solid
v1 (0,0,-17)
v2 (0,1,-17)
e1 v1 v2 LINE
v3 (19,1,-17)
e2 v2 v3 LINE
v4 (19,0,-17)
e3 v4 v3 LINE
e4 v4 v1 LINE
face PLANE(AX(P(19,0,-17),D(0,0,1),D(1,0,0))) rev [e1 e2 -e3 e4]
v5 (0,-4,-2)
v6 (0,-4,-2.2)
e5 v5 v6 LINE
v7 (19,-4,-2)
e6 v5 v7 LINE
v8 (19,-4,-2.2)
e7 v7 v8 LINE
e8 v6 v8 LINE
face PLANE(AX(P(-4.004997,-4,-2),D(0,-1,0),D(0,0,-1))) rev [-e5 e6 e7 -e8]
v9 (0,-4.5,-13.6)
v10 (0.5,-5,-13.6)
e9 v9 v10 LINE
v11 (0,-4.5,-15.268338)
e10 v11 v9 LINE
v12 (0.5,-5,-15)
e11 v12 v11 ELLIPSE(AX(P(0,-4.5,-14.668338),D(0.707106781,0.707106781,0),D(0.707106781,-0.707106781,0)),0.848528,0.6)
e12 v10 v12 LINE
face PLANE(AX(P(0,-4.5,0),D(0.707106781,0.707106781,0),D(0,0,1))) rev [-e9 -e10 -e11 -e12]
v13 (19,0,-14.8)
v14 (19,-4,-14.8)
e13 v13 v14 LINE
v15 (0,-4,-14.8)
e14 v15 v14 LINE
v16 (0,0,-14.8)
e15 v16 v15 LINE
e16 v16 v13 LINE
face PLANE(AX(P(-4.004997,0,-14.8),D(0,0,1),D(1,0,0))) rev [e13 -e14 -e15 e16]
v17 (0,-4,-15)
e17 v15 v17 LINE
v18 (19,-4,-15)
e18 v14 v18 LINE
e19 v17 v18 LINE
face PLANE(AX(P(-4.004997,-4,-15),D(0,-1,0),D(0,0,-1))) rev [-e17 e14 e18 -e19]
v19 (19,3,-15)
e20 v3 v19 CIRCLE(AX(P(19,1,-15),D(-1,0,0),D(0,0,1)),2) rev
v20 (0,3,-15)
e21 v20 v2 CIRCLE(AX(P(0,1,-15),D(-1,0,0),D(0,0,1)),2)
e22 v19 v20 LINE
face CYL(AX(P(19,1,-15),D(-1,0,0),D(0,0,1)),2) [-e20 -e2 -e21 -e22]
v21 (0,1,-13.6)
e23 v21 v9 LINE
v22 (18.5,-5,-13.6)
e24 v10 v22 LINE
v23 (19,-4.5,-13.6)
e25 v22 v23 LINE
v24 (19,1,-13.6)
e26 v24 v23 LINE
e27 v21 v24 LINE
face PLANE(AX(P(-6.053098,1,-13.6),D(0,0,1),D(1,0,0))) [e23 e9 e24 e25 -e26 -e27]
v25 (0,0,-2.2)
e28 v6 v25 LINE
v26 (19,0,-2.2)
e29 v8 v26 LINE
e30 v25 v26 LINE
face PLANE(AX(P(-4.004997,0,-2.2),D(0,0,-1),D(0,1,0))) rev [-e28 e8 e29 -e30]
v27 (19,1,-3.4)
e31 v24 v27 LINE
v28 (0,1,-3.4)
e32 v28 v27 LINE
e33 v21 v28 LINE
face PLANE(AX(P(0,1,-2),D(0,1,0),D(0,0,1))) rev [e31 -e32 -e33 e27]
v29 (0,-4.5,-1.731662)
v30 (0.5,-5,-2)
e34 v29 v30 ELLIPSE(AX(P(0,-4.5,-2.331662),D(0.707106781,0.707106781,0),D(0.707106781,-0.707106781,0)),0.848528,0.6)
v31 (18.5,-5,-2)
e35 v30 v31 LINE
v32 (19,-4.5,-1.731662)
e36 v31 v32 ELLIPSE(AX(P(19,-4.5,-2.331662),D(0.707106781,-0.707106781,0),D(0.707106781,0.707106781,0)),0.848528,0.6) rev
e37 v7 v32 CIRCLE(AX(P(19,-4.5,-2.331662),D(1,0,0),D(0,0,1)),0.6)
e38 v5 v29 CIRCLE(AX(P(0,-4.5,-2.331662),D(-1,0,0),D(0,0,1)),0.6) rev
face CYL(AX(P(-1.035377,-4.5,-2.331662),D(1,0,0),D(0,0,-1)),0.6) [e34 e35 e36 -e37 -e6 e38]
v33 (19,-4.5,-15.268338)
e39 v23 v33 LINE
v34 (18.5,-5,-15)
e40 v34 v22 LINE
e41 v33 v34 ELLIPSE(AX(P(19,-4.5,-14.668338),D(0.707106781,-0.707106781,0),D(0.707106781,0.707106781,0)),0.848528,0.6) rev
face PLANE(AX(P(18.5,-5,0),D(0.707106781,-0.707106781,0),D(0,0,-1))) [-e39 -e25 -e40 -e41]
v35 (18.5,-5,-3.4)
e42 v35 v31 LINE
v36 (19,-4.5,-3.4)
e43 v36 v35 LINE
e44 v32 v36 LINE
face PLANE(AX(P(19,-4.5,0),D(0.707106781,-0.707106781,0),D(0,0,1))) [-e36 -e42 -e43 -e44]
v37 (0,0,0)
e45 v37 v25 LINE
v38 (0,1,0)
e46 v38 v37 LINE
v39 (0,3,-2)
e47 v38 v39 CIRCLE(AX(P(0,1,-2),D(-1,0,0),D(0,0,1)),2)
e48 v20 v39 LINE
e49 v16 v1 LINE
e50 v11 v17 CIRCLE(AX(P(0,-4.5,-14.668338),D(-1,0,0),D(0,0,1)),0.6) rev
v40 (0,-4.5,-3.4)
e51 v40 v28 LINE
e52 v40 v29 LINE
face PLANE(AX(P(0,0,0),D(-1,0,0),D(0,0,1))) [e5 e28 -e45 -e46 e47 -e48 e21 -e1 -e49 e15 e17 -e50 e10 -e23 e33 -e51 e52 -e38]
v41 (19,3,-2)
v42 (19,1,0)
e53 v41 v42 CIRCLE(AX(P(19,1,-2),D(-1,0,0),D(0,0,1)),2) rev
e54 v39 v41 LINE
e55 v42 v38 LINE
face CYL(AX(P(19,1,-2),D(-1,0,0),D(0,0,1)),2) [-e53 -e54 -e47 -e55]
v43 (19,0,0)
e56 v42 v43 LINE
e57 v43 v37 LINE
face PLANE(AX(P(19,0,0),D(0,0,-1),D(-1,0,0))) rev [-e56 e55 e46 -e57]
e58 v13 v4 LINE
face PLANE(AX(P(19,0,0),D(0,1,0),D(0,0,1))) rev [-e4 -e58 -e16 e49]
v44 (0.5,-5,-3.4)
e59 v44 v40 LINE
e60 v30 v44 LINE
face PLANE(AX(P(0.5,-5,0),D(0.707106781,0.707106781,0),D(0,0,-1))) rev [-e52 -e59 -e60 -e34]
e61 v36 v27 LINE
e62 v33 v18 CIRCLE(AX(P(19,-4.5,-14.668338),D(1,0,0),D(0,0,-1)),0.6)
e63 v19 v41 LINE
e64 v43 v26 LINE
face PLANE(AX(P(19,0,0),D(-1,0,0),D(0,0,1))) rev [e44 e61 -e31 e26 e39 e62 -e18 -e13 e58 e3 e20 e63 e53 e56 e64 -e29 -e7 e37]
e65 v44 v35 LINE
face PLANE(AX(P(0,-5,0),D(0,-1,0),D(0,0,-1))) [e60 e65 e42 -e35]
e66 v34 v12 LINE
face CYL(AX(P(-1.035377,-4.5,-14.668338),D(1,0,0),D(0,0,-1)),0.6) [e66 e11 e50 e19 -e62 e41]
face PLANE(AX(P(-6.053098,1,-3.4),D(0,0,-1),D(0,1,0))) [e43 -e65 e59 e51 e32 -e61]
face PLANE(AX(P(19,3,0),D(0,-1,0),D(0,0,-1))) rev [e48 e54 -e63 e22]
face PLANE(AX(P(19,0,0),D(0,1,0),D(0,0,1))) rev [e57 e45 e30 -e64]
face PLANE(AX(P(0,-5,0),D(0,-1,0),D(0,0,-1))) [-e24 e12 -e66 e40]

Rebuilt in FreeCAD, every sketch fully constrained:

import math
import FreeCAD as App
import Part
import Sketcher
from FreeCAD import Vector
Q = App.Units.Quantity


def edges_at(feature, points):
    """Names of the edges that pass closest to the given points."""
    edges = feature.Shape.Edges
    near = lambda p: min(range(len(edges)), key=lambda i: edges[i].distToShape(Part.Vertex(*p))[0])
    return sorted({f"Edge{near(p) + 1}" for p in points})

doc = App.newDocument("Part")
params = doc.addObject("Spreadsheet::Sheet", "Params")
for row, (alias, value) in enumerate([
    ("sketch1_width", "3 mm"),
    ("sketch1_height", "17 mm"),
    ("pad1_length", "19 mm"),
    ("fillet_radius", "2 mm"),
    ("sketch2_width", "1 mm"),
    ("sketch2_height", "13 mm"),
    ("sketch3_width", "19 mm"),
    ("sketch3_height", "0.6 mm"),
    ("pad2_length", "6 mm"),
    ("sketch4_radius", "0.6 mm"),
    ("sketch4_width", "1 mm"),
    ("pad3_length", "19 mm"),
    ("sketch5_width", "6 mm"),
    ("sketch5_height", "0.8 mm"),
    ("pad4_length", "19 mm"),
    ("sketch6_width", "4 mm"),
    ("sketch6_height", "0.2 mm"),
    ("pocket2_length", "19 mm"),
    ("chamfer_size", "0.5 mm"),
], start=1):
    params.set(f"A{row}", alias)
    params.set(f"B{row}", "=" + value)
    params.setAlias(f"B{row}", alias)

body = doc.addObject("PartDesign::Body", "Body")

# Sketch on YZ plane
sketch1 = body.newObject("Sketcher::SketchObject", "Sketch")
sketch1.AttachmentSupport = (doc.getObject("YZ_Plane"), [""])
sketch1.MapMode = "FlatFace"
sketch1.addGeometry(Part.LineSegment(Vector(3, 0, 0), Vector(0, 0, 0)), False)
sketch1.addGeometry(Part.LineSegment(Vector(0, 0, 0), Vector(0, -17, 0)), False)
sketch1.addGeometry(Part.LineSegment(Vector(0, -17, 0), Vector(3, -17, 0)), False)
sketch1.addGeometry(Part.LineSegment(Vector(3, -17, 0), Vector(3, 0, 0)), False)
sketch1.addConstraint(Sketcher.Constraint("Coincident", 0, 2, 1, 1))
sketch1.addConstraint(Sketcher.Constraint("Coincident", 1, 2, 2, 1))
sketch1.addConstraint(Sketcher.Constraint("Coincident", 2, 2, 3, 1))
sketch1.addConstraint(Sketcher.Constraint("Coincident", 3, 2, 0, 1))
sketch1.addConstraint(Sketcher.Constraint("Horizontal", 0))
sketch1.addConstraint(Sketcher.Constraint("Vertical", 1))
sketch1.addConstraint(Sketcher.Constraint("Horizontal", 2))
sketch1.addConstraint(Sketcher.Constraint("Vertical", 3))
sketch1.addConstraint(Sketcher.Constraint("Coincident", 0, 2, -1, 1))
sketch1.addConstraint(Sketcher.Constraint("DistanceX", 0, 2, 0, 1, Q("3 mm")))
sketch1.addConstraint(Sketcher.Constraint("DistanceY", 1, 2, 1, 1, Q("17 mm")))
sketch1.setExpression("Constraints[9]", "Params.sketch1_width")
sketch1.setExpression("Constraints[10]", "Params.sketch1_height")
pad1 = body.newObject("PartDesign::Pad", "Pad")
pad1.Profile = sketch1
pad1.setExpression("Length", "Params.pad1_length")
doc.recompute()

fillet = body.newObject("PartDesign::Fillet", "Fillet")
fillet.Base = (pad1, edges_at(pad1, [(9.5, 3, 0), (9.5, 3, -17)]))
fillet.setExpression("Radius", "Params.fillet_radius")

# Sketch on YZ plane
sketch2 = body.newObject("Sketcher::SketchObject", "Sketch001")
sketch2.AttachmentSupport = (doc.getObject("YZ_Plane"), [""])
sketch2.MapMode = "FlatFace"
sketch2.AttachmentOffset = App.Placement(Vector(0, 0, 19), App.Rotation())
sketch2.addGeometry(Part.LineSegment(Vector(1, -2, 0), Vector(0, -2, 0)), False)
sketch2.addGeometry(Part.LineSegment(Vector(0, -2, 0), Vector(0, -15, 0)), False)
sketch2.addGeometry(Part.LineSegment(Vector(0, -15, 0), Vector(1, -15, 0)), False)
sketch2.addGeometry(Part.LineSegment(Vector(1, -15, 0), Vector(1, -2, 0)), False)
sketch2.addConstraint(Sketcher.Constraint("Coincident", 0, 2, 1, 1))
sketch2.addConstraint(Sketcher.Constraint("Coincident", 1, 2, 2, 1))
sketch2.addConstraint(Sketcher.Constraint("Coincident", 2, 2, 3, 1))
sketch2.addConstraint(Sketcher.Constraint("Coincident", 3, 2, 0, 1))
sketch2.addConstraint(Sketcher.Constraint("Horizontal", 0))
sketch2.addConstraint(Sketcher.Constraint("Vertical", 1))
sketch2.addConstraint(Sketcher.Constraint("Horizontal", 2))
sketch2.addConstraint(Sketcher.Constraint("Vertical", 3))
sketch2.addConstraint(Sketcher.Constraint("PointOnObject", 0, 2, -2))
sketch2.addConstraint(Sketcher.Constraint("DistanceX", 0, 2, 0, 1, Q("1 mm")))
sketch2.addConstraint(Sketcher.Constraint("DistanceY", 1, 2, 1, 1, Q("13 mm")))
sketch2.addConstraint(Sketcher.Constraint("DistanceY", 0, 2, -1, 1, Q("2 mm")))
sketch2.setExpression("Constraints[9]", "Params.sketch2_width")
sketch2.setExpression("Constraints[10]", "Params.sketch2_height")
pocket1 = body.newObject("PartDesign::Pocket", "Pocket")
pocket1.Profile = sketch2
pocket1.Type = "ThroughAll"

# Sketch on XZ plane
sketch3 = body.newObject("Sketcher::SketchObject", "Sketch002")
sketch3.AttachmentSupport = (doc.getObject("XZ_Plane"), [""])
sketch3.MapMode = "FlatFace"
sketch3.AttachmentOffset = App.Placement(Vector(0, 0, -1), App.Rotation())
sketch3.addGeometry(Part.LineSegment(Vector(19, -2.6, 0), Vector(19, -2, 0)), False)
sketch3.addGeometry(Part.LineSegment(Vector(19, -2, 0), Vector(0, -2, 0)), False)
sketch3.addGeometry(Part.LineSegment(Vector(0, -2, 0), Vector(0, -2.6, 0)), False)
sketch3.addGeometry(Part.LineSegment(Vector(0, -2.6, 0), Vector(19, -2.6, 0)), False)
sketch3.addGeometry(Part.LineSegment(Vector(19, -15, 0), Vector(19, -14.4, 0)), False)
sketch3.addGeometry(Part.LineSegment(Vector(19, -14.4, 0), Vector(0, -14.4, 0)), False)
sketch3.addGeometry(Part.LineSegment(Vector(0, -14.4, 0), Vector(0, -15, 0)), False)
sketch3.addGeometry(Part.LineSegment(Vector(0, -15, 0), Vector(19, -15, 0)), False)
sketch3.addConstraint(Sketcher.Constraint("Coincident", 0, 2, 1, 1))
sketch3.addConstraint(Sketcher.Constraint("Coincident", 1, 2, 2, 1))
sketch3.addConstraint(Sketcher.Constraint("Coincident", 2, 2, 3, 1))
sketch3.addConstraint(Sketcher.Constraint("Coincident", 3, 2, 0, 1))
sketch3.addConstraint(Sketcher.Constraint("Coincident", 4, 2, 5, 1))
sketch3.addConstraint(Sketcher.Constraint("Coincident", 5, 2, 6, 1))
sketch3.addConstraint(Sketcher.Constraint("Coincident", 6, 2, 7, 1))
sketch3.addConstraint(Sketcher.Constraint("Coincident", 7, 2, 4, 1))
sketch3.addConstraint(Sketcher.Constraint("Vertical", 0))
sketch3.addConstraint(Sketcher.Constraint("Horizontal", 1))
sketch3.addConstraint(Sketcher.Constraint("Vertical", 2))
sketch3.addConstraint(Sketcher.Constraint("Horizontal", 3))
sketch3.addConstraint(Sketcher.Constraint("Vertical", 4))
sketch3.addConstraint(Sketcher.Constraint("Horizontal", 5))
sketch3.addConstraint(Sketcher.Constraint("Vertical", 6))
sketch3.addConstraint(Sketcher.Constraint("Horizontal", 7))
sketch3.addConstraint(Sketcher.Constraint("PointOnObject", 1, 2, -2))
sketch3.addConstraint(Sketcher.Constraint("PointOnObject", 5, 2, -2))
sketch3.addConstraint(Sketcher.Constraint("Vertical", 3, 2, 4, 2))
sketch3.addConstraint(Sketcher.Constraint("Equal", 2, 4))
sketch3.addConstraint(Sketcher.Constraint("DistanceX", 1, 2, 1, 1, Q("19 mm")))
sketch3.addConstraint(Sketcher.Constraint("DistanceY", 0, 1, 0, 2, Q("0.6 mm")))
sketch3.addConstraint(Sketcher.Constraint("DistanceY", 0, 2, -1, 1, Q("2 mm")))
sketch3.addConstraint(Sketcher.Constraint("DistanceY", 6, 2, -1, 1, Q("15 mm")))
sketch3.setExpression("Constraints[20]", "Params.sketch3_width")
sketch3.setExpression("Constraints[21]", "Params.sketch3_height")
pad2 = body.newObject("PartDesign::Pad", "Pad001")
pad2.Profile = sketch3
pad2.setExpression("Length", "Params.pad2_length")

# Sketch on YZ plane
sketch4 = body.newObject("Sketcher::SketchObject", "Sketch003")
sketch4.AttachmentSupport = (doc.getObject("YZ_Plane"), [""])
sketch4.MapMode = "FlatFace"
sketch4.AttachmentOffset = App.Placement(Vector(0, 0, 19), App.Rotation())
sketch4.addGeometry(Part.LineSegment(Vector(-5, -2, 0), Vector(-4, -2, 0)), False)
sketch4.addGeometry(Part.ArcOfCircle(Part.Circle(Vector(-4.5, -2.3, 0), Vector(0, 0, 1), 0.6), math.radians(34), math.radians(146)), False)
sketch4.addGeometry(Part.LineSegment(Vector(-4, -15, 0), Vector(-5, -15, 0)), False)
sketch4.addGeometry(Part.ArcOfCircle(Part.Circle(Vector(-4.5, -14.7, 0), Vector(0, 0, 1), 0.6), math.radians(-146), math.radians(-34)), False)
sketch4.addConstraint(Sketcher.Constraint("Coincident", 0, 1, 1, 2))
sketch4.addConstraint(Sketcher.Constraint("Coincident", 1, 1, 0, 2))
sketch4.addConstraint(Sketcher.Constraint("Coincident", 2, 1, 3, 2))
sketch4.addConstraint(Sketcher.Constraint("Coincident", 3, 1, 2, 2))
sketch4.addConstraint(Sketcher.Constraint("Horizontal", 0))
sketch4.addConstraint(Sketcher.Constraint("Horizontal", 2))
sketch4.addConstraint(Sketcher.Constraint("Equal", 1, 3))
sketch4.addConstraint(Sketcher.Constraint("Vertical", 1, 3, 3, 3))
sketch4.addConstraint(Sketcher.Constraint("Vertical", 1, 1, 2, 1))
sketch4.addConstraint(Sketcher.Constraint("Radius", 1, Q("0.6 mm")))
sketch4.addConstraint(Sketcher.Constraint("DistanceX", 0, 1, 0, 2, Q("1 mm")))
sketch4.addConstraint(Sketcher.Constraint("DistanceX", 0, 1, -1, 1, Q("5 mm")))
sketch4.addConstraint(Sketcher.Constraint("DistanceY", 0, 1, -1, 1, Q("2 mm")))
sketch4.addConstraint(Sketcher.Constraint("DistanceY", 2, 1, -1, 1, Q("15 mm")))
sketch4.setExpression("Constraints[9]", "Params.sketch4_radius")
sketch4.setExpression("Constraints[10]", "Params.sketch4_width")
pad3 = body.newObject("PartDesign::Pad", "Pad002")
pad3.Profile = sketch4
pad3.setExpression("Length", "Params.pad3_length")
pad3.Reversed = True

# Sketch on YZ plane
sketch5 = body.newObject("Sketcher::SketchObject", "Sketch004")
sketch5.AttachmentSupport = (doc.getObject("YZ_Plane"), [""])
sketch5.MapMode = "FlatFace"
sketch5.AttachmentOffset = App.Placement(Vector(0, 0, 19), App.Rotation())
sketch5.addGeometry(Part.LineSegment(Vector(1, -2.6, 0), Vector(-5, -2.6, 0)), False)
sketch5.addGeometry(Part.LineSegment(Vector(-5, -2.6, 0), Vector(-5, -3.4, 0)), False)
sketch5.addGeometry(Part.LineSegment(Vector(-5, -3.4, 0), Vector(1, -3.4, 0)), False)
sketch5.addGeometry(Part.LineSegment(Vector(1, -3.4, 0), Vector(1, -2.6, 0)), False)
sketch5.addGeometry(Part.LineSegment(Vector(1, -13.6, 0), Vector(-5, -13.6, 0)), False)
sketch5.addGeometry(Part.LineSegment(Vector(-5, -13.6, 0), Vector(-5, -14.4, 0)), False)
sketch5.addGeometry(Part.LineSegment(Vector(-5, -14.4, 0), Vector(1, -14.4, 0)), False)
sketch5.addGeometry(Part.LineSegment(Vector(1, -14.4, 0), Vector(1, -13.6, 0)), False)
sketch5.addConstraint(Sketcher.Constraint("Coincident", 0, 2, 1, 1))
sketch5.addConstraint(Sketcher.Constraint("Coincident", 1, 2, 2, 1))
sketch5.addConstraint(Sketcher.Constraint("Coincident", 2, 2, 3, 1))
sketch5.addConstraint(Sketcher.Constraint("Coincident", 3, 2, 0, 1))
sketch5.addConstraint(Sketcher.Constraint("Coincident", 4, 2, 5, 1))
sketch5.addConstraint(Sketcher.Constraint("Coincident", 5, 2, 6, 1))
sketch5.addConstraint(Sketcher.Constraint("Coincident", 6, 2, 7, 1))
sketch5.addConstraint(Sketcher.Constraint("Coincident", 7, 2, 4, 1))
sketch5.addConstraint(Sketcher.Constraint("Horizontal", 0))
sketch5.addConstraint(Sketcher.Constraint("Vertical", 1))
sketch5.addConstraint(Sketcher.Constraint("Horizontal", 2))
sketch5.addConstraint(Sketcher.Constraint("Vertical", 3))
sketch5.addConstraint(Sketcher.Constraint("Horizontal", 4))
sketch5.addConstraint(Sketcher.Constraint("Vertical", 5))
sketch5.addConstraint(Sketcher.Constraint("Horizontal", 6))
sketch5.addConstraint(Sketcher.Constraint("Vertical", 7))
sketch5.addConstraint(Sketcher.Constraint("Vertical", 1, 2, 4, 2))
sketch5.addConstraint(Sketcher.Constraint("Vertical", 3, 2, 6, 2))
sketch5.addConstraint(Sketcher.Constraint("Equal", 3, 5))
sketch5.addConstraint(Sketcher.Constraint("DistanceX", 0, 2, 0, 1, Q("6 mm")))
sketch5.addConstraint(Sketcher.Constraint("DistanceY", 1, 2, 1, 1, Q("0.8 mm")))
sketch5.addConstraint(Sketcher.Constraint("DistanceX", 0, 2, -1, 1, Q("5 mm")))
sketch5.addConstraint(Sketcher.Constraint("DistanceY", 4, 2, 0, 2, Q("11 mm")))
sketch5.addConstraint(Sketcher.Constraint("DistanceY", 0, 2, -1, 1, Q("2.6 mm")))
sketch5.setExpression("Constraints[19]", "Params.sketch5_width")
sketch5.setExpression("Constraints[20]", "Params.sketch5_height")
pad4 = body.newObject("PartDesign::Pad", "Pad003")
pad4.Profile = sketch5
pad4.setExpression("Length", "Params.pad4_length")
pad4.Reversed = True

# Sketch on YZ plane
sketch6 = body.newObject("Sketcher::SketchObject", "Sketch005")
sketch6.AttachmentSupport = (doc.getObject("YZ_Plane"), [""])
sketch6.MapMode = "FlatFace"
sketch6.AttachmentOffset = App.Placement(Vector(0, 0, 19), App.Rotation())
sketch6.addGeometry(Part.LineSegment(Vector(0, -2, 0), Vector(-4, -2, 0)), False)
sketch6.addGeometry(Part.LineSegment(Vector(-4, -2, 0), Vector(-4, -2.2, 0)), False)
sketch6.addGeometry(Part.LineSegment(Vector(-4, -2.2, 0), Vector(0, -2.2, 0)), False)
sketch6.addGeometry(Part.LineSegment(Vector(0, -2.2, 0), Vector(0, -2, 0)), False)
sketch6.addGeometry(Part.LineSegment(Vector(0, -14.8, 0), Vector(-4, -14.8, 0)), False)
sketch6.addGeometry(Part.LineSegment(Vector(-4, -14.8, 0), Vector(-4, -15, 0)), False)
sketch6.addGeometry(Part.LineSegment(Vector(-4, -15, 0), Vector(0, -15, 0)), False)
sketch6.addGeometry(Part.LineSegment(Vector(0, -15, 0), Vector(0, -14.8, 0)), False)
sketch6.addConstraint(Sketcher.Constraint("Coincident", 0, 2, 1, 1))
sketch6.addConstraint(Sketcher.Constraint("Coincident", 1, 2, 2, 1))
sketch6.addConstraint(Sketcher.Constraint("Coincident", 2, 2, 3, 1))
sketch6.addConstraint(Sketcher.Constraint("Coincident", 3, 2, 0, 1))
sketch6.addConstraint(Sketcher.Constraint("Coincident", 4, 2, 5, 1))
sketch6.addConstraint(Sketcher.Constraint("Coincident", 5, 2, 6, 1))
sketch6.addConstraint(Sketcher.Constraint("Coincident", 6, 2, 7, 1))
sketch6.addConstraint(Sketcher.Constraint("Coincident", 7, 2, 4, 1))
sketch6.addConstraint(Sketcher.Constraint("Horizontal", 0))
sketch6.addConstraint(Sketcher.Constraint("Vertical", 1))
sketch6.addConstraint(Sketcher.Constraint("Horizontal", 2))
sketch6.addConstraint(Sketcher.Constraint("Vertical", 3))
sketch6.addConstraint(Sketcher.Constraint("Horizontal", 4))
sketch6.addConstraint(Sketcher.Constraint("Vertical", 5))
sketch6.addConstraint(Sketcher.Constraint("Horizontal", 6))
sketch6.addConstraint(Sketcher.Constraint("Vertical", 7))
sketch6.addConstraint(Sketcher.Constraint("PointOnObject", 2, 2, -2))
sketch6.addConstraint(Sketcher.Constraint("PointOnObject", 6, 2, -2))
sketch6.addConstraint(Sketcher.Constraint("Vertical", 1, 2, 4, 2))
sketch6.addConstraint(Sketcher.Constraint("Equal", 3, 5))
sketch6.addConstraint(Sketcher.Constraint("DistanceX", 0, 2, 0, 1, Q("4 mm")))
sketch6.addConstraint(Sketcher.Constraint("DistanceY", 1, 2, 1, 1, Q("0.2 mm")))
sketch6.addConstraint(Sketcher.Constraint("DistanceY", 0, 2, -1, 1, Q("2 mm")))
sketch6.addConstraint(Sketcher.Constraint("DistanceY", 5, 2, -1, 1, Q("15 mm")))
sketch6.setExpression("Constraints[20]", "Params.sketch6_width")
sketch6.setExpression("Constraints[21]", "Params.sketch6_height")
pocket2 = body.newObject("PartDesign::Pocket", "Pocket001")
pocket2.Profile = sketch6
pocket2.setExpression("Length", "Params.pocket2_length")
doc.recompute()

chamfer = body.newObject("PartDesign::Chamfer", "Chamfer")
chamfer.Base = (pocket2, edges_at(pocket2, [
    (19, -5, -2.7),
    (0, -5, -2.7),
    (0, -5, -14.3),
    (19, -5, -14.3),
]))
chamfer.setExpression("Size", "Params.chamfer_size")

doc.recompute()
